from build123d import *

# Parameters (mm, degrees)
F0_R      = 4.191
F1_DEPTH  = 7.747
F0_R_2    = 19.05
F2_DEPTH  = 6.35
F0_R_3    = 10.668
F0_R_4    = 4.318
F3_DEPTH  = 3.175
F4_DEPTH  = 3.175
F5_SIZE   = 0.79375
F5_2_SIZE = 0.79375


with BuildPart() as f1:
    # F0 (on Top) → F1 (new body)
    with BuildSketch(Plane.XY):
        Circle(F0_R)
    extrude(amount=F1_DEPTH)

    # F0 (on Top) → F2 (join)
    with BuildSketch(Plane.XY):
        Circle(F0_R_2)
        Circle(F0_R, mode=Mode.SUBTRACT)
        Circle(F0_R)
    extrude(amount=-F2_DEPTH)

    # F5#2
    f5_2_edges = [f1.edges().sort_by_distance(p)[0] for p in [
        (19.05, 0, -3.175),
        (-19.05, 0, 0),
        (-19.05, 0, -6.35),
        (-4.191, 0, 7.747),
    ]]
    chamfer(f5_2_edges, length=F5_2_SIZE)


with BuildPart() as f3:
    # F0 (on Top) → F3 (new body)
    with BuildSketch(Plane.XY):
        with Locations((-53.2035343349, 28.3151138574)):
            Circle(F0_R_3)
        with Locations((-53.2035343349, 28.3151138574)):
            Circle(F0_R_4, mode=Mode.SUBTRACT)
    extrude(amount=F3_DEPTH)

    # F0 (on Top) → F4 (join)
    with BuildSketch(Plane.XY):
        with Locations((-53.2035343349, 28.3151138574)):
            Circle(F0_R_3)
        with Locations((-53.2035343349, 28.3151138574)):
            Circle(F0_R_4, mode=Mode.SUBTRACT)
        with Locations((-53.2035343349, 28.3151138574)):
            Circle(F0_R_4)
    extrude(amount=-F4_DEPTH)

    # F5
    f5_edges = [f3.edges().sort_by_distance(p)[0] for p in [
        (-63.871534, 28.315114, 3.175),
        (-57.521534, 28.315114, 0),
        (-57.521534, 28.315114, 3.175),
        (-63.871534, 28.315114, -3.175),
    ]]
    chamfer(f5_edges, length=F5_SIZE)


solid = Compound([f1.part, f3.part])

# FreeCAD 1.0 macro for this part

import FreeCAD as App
import Part
import Sketcher
from FreeCAD import Vector
Q = App.Units.Quantity


def edges_at(feature, points):
    """Names of the edges that pass closest to the given points."""
    edges = feature.Shape.Edges
    near = lambda p: min(range(len(edges)), key=lambda i: edges[i].distToShape(Part.Vertex(*p))[0])
    return sorted({f"Edge{near(p) + 1}" for p in points})

doc = App.newDocument("Part")
body = doc.addObject("PartDesign::Body", "Body")

sketch1 = doc.addObject("Sketcher::SketchObject", "Sketch")
body.addObject(sketch1)
sketch1.AttachmentSupport = (doc.XY_Plane, [""])
sketch1.MapMode = "FlatFace"
sketch1.addGeometry(Part.Circle(Vector(0, 0, 0), Vector(0, 0, 1), 4.2), False)
sketch1.addConstraint(Sketcher.Constraint("Coincident", 0, 3, -1, 1))
sketch1.addConstraint(Sketcher.Constraint("Diameter", 0, Q("0.33 in")))
pad1 = doc.addObject("PartDesign::Pad", "Pad")
body.addObject(pad1)
pad1.Profile = sketch1
pad1.Length = Q("0.305 in")

sketch2 = doc.addObject("Sketcher::SketchObject", "Sketch001")
body.addObject(sketch2)
sketch2.AttachmentSupport = (doc.XY_Plane, [""])
sketch2.MapMode = "FlatFace"
sketch2.addGeometry(Part.Circle(Vector(0, 0, 0), Vector(0, 0, 1), 19), False)
sketch2.addConstraint(Sketcher.Constraint("Coincident", 0, 3, -1, 1))
sketch2.addConstraint(Sketcher.Constraint("Diameter", 0, Q("1.5 in")))
pad2 = doc.addObject("PartDesign::Pad", "Pad001")
body.addObject(pad2)
pad2.Profile = sketch2
pad2.Length = Q("0.25 in")
pad2.Reversed = True
doc.recompute()

chamfer = doc.addObject("PartDesign::Chamfer", "Chamfer")
body.addObject(chamfer)
chamfer.Base = (pad2, edges_at(pad2, [
    (19.05, 0, -3.175),
    (-19.05, 0, 0),
    (-19.05, 0, -6.35),
    (-4.191, 0, 7.747),
]))
chamfer.Size = Q("0.03125 in")
body2 = doc.addObject("PartDesign::Body", "Body001")

sketch3 = doc.addObject("Sketcher::SketchObject", "Sketch002")
body2.addObject(sketch3)
sketch3.AttachmentSupport = (doc.getObject("XY_Plane001"), [""])
sketch3.MapMode = "FlatFace"
sketch3.addGeometry(Part.Circle(Vector(-53.2, 28.3, 0), Vector(0, 0, 1), 10.7), False)
sketch3.addGeometry(Part.Circle(Vector(-53.2, 28.3, 0), Vector(0, 0, 1), 4.3), False)
sketch3.addConstraint(Sketcher.Constraint("Coincident", 1, 3, 0, 3))
sketch3.addConstraint(Sketcher.Constraint("Diameter", 0, Q("0.84 in")))
sketch3.addConstraint(Sketcher.Constraint("Diameter", 1, Q("0.34 in")))
sketch3.addConstraint(Sketcher.Constraint("DistanceX", 0, 3, -1, 1, 53.203534))
sketch3.addConstraint(Sketcher.Constraint("DistanceY", -1, 1, 0, 3, 28.315114))
pad3 = doc.addObject("PartDesign::Pad", "Pad002")
body2.addObject(pad3)
pad3.Profile = sketch3
pad3.Length = Q("0.125 in")

sketch4 = doc.addObject("Sketcher::SketchObject", "Sketch003")
body2.addObject(sketch4)
sketch4.AttachmentSupport = (doc.getObject("XY_Plane001"), [""])
sketch4.MapMode = "FlatFace"
sketch4.addGeometry(Part.Circle(Vector(-53, 28, 0), Vector(0, 0, 1), 11), False)
sketch4.addConstraint(Sketcher.Constraint("Diameter", 0, Q("0.84 in")))
sketch4.addConstraint(Sketcher.Constraint("DistanceX", 0, 3, -1, 1, 53.203534))
sketch4.addConstraint(Sketcher.Constraint("DistanceY", -1, 1, 0, 3, 28.315114))
pad4 = doc.addObject("PartDesign::Pad", "Pad003")
body2.addObject(pad4)
pad4.Profile = sketch4
pad4.Length = Q("0.125 in")
pad4.Reversed = True
doc.recompute()

chamfer2 = doc.addObject("PartDesign::Chamfer", "Chamfer001")
body2.addObject(chamfer2)
chamfer2.Base = (pad4, edges_at(pad4, [
    (-63.872, 28.315, 3.175),
    (-57.522, 28.315, 0),
    (-57.522, 28.315, 3.175),
    (-63.872, 28.315, -3.175),
]))
chamfer2.Size = Q("0.03125 in")

doc.recompute()
